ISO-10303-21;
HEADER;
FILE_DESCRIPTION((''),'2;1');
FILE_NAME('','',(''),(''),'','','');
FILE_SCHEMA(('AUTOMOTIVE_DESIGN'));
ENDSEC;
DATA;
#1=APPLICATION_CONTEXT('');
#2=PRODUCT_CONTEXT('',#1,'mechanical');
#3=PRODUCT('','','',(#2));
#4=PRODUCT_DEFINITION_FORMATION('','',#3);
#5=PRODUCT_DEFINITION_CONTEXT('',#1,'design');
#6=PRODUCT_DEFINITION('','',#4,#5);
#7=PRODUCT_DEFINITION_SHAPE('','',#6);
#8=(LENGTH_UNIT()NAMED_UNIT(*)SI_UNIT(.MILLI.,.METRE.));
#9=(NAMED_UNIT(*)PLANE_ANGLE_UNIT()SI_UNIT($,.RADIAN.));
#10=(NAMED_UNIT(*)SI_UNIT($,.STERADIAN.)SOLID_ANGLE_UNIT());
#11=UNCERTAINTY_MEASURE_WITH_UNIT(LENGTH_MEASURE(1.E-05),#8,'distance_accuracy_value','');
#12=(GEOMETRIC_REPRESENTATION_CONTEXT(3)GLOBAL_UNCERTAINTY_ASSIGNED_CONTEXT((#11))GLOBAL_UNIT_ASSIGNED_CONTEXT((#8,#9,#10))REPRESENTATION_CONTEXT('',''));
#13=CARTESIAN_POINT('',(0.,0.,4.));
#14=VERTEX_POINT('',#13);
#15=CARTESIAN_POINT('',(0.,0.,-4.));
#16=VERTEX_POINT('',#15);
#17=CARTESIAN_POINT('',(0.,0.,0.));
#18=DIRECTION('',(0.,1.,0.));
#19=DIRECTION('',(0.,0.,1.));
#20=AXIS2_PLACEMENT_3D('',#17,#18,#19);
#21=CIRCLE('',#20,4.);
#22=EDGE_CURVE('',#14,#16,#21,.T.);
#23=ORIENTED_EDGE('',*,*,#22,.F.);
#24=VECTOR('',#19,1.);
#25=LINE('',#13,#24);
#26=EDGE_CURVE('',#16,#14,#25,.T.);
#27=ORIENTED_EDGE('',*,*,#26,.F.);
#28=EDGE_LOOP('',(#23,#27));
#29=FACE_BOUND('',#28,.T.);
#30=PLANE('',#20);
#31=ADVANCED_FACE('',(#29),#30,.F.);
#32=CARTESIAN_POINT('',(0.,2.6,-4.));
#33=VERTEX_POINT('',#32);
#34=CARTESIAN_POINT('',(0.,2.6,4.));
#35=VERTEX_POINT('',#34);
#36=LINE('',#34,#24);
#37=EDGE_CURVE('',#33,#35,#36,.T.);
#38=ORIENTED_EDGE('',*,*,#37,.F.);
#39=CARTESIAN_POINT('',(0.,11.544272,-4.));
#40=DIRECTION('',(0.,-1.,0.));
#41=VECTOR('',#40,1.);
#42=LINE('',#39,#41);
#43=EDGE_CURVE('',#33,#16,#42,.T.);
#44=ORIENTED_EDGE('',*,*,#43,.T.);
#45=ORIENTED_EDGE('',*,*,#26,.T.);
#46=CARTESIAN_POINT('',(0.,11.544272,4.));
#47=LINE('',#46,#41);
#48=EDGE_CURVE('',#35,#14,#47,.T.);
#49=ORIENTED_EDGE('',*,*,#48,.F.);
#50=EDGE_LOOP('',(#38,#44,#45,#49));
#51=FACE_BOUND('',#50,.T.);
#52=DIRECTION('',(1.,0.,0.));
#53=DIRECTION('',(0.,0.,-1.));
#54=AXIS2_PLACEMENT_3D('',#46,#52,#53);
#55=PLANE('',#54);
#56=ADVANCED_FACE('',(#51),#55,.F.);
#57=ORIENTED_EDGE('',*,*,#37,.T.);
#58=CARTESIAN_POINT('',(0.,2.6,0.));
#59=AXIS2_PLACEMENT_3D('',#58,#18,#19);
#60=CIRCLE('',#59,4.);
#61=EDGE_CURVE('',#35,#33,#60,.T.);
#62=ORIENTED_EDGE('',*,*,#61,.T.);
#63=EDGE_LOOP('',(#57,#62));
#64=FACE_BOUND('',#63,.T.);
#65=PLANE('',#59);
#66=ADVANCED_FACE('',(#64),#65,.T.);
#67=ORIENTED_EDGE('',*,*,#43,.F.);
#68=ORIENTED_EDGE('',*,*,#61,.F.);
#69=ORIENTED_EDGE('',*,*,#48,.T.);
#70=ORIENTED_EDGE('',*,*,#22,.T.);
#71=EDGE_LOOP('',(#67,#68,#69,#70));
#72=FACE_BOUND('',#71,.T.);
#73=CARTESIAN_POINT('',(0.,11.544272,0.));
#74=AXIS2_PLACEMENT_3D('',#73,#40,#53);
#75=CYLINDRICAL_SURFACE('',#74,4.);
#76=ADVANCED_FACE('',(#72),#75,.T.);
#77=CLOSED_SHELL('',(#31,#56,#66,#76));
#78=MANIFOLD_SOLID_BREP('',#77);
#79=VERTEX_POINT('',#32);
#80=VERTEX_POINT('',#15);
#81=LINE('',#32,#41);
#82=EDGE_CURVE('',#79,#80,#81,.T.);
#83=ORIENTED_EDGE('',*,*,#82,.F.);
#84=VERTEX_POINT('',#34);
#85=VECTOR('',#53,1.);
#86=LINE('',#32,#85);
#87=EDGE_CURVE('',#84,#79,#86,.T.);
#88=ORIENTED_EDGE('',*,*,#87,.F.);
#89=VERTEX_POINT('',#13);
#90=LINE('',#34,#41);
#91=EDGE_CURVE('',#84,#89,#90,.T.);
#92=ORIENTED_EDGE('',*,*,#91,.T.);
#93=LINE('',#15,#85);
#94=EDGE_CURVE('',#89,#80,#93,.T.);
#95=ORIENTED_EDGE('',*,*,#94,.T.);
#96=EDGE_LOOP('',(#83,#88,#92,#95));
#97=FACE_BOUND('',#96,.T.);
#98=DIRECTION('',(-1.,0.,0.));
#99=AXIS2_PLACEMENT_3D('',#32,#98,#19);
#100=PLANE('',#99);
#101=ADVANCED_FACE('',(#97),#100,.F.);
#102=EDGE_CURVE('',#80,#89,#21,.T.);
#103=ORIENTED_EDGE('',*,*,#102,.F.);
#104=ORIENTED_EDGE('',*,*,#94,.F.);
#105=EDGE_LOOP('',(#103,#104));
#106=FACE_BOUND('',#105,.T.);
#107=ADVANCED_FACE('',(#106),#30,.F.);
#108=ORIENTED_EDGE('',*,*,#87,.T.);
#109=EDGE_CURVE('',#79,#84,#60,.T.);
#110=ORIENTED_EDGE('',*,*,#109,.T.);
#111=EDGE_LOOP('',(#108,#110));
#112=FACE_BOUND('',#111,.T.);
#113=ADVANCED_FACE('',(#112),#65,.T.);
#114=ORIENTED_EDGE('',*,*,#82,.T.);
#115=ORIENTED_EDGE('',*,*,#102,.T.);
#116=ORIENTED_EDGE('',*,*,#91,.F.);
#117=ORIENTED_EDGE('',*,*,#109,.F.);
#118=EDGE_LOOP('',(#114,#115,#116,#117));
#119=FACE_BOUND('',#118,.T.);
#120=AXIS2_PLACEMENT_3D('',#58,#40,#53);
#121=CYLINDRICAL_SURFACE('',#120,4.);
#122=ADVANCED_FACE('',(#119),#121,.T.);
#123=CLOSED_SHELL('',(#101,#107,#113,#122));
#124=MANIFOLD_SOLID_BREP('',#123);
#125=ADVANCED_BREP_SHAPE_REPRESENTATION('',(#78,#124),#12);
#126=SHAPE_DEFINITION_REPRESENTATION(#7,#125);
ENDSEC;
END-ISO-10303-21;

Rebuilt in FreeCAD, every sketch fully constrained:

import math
import FreeCAD as App
import Part
import Sketcher
from FreeCAD import Vector
Q = App.Units.Quantity

doc = App.newDocument("Part")
body = doc.addObject("PartDesign::Body", "Body")

# Sketch on XZ plane
sketch1 = body.newObject("Sketcher::SketchObject", "Sketch")
sketch1.AttachmentSupport = (doc.getObject("XZ_Plane"), [""])
sketch1.MapMode = "FlatFace"
sketch1.addGeometry(Part.LineSegment(Vector(0, 4, 0), Vector(0, -4, 0)), False)
sketch1.addGeometry(Part.ArcOfCircle(Part.Circle(Vector(0, 0, 0), Vector(0, 0, 1), 4), math.radians(90), math.radians(270)), False)
sketch1.addConstraint(Sketcher.Constraint("Coincident", 0, 1, 1, 1))
sketch1.addConstraint(Sketcher.Constraint("Coincident", 1, 2, 0, 2))
sketch1.addConstraint(Sketcher.Constraint("Vertical", 0))
sketch1.addConstraint(Sketcher.Constraint("Coincident", 1, 3, -1, 1))
sketch1.addConstraint(Sketcher.Constraint("PointOnObject", 0, 1, -2))
sketch1.addConstraint(Sketcher.Constraint("Radius", 1, Q("4 mm")))
pad1 = body.newObject("PartDesign::Pad", "Pad")
pad1.Profile = sketch1
pad1.Length = 2.6
pad1.Reversed = True
body2 = doc.addObject("PartDesign::Body", "Body001")

# Sketch on XZ plane
sketch2 = body2.newObject("Sketcher::SketchObject", "Sketch001")
sketch2.AttachmentSupport = (doc.getObject("XZ_Plane001"), [""])
sketch2.MapMode = "FlatFace"
sketch2.addGeometry(Part.LineSegment(Vector(0, -4, 0), Vector(0, 4, 0)), False)
sketch2.addGeometry(Part.ArcOfCircle(Part.Circle(Vector(0, 0, 0), Vector(0, 0, 1), 4), math.radians(-90), math.radians(90)), False)
sketch2.addConstraint(Sketcher.Constraint("Coincident", 0, 1, 1, 1))
sketch2.addConstraint(Sketcher.Constraint("Coincident", 1, 2, 0, 2))
sketch2.addConstraint(Sketcher.Constraint("Vertical", 0))
sketch2.addConstraint(Sketcher.Constraint("Coincident", 1, 3, -1, 1))
sketch2.addConstraint(Sketcher.Constraint("PointOnObject", 0, 1, -2))
sketch2.addConstraint(Sketcher.Constraint("Radius", 1, Q("4 mm")))
pad2 = body2.newObject("PartDesign::Pad", "Pad001")
pad2.Profile = sketch2
pad2.Length = 2.6
pad2.Reversed = True

doc.recompute()
